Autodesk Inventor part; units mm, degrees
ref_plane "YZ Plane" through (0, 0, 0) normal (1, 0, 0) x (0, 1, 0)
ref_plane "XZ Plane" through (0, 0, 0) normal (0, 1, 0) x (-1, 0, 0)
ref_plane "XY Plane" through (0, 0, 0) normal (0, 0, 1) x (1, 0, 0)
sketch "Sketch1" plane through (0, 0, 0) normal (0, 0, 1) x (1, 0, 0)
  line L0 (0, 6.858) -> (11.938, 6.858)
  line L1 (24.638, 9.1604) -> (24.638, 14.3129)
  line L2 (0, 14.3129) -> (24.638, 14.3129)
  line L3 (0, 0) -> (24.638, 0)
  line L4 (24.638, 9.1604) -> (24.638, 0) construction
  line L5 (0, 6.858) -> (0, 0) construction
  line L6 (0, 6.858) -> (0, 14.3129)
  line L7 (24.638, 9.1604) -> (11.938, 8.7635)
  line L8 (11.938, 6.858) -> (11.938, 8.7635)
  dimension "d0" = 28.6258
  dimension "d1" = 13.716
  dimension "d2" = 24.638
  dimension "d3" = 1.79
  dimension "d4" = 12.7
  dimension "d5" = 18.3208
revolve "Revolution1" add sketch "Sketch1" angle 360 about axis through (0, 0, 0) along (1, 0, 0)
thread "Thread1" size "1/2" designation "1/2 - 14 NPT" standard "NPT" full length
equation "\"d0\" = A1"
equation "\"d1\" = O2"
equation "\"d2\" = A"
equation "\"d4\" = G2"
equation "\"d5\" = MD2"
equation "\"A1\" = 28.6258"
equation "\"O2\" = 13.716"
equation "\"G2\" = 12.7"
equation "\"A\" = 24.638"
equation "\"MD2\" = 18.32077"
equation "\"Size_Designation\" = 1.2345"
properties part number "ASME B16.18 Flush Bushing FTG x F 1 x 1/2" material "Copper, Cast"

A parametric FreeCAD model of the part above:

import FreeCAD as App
import Part
import Sketcher
from FreeCAD import Vector
Q = App.Units.Quantity

doc = App.newDocument("Part")
body = doc.addObject("PartDesign::Body", "Body")

sketch1 = body.newObject("Sketcher::SketchObject", "Sketch")
sketch1.AttachmentSupport = (doc.getObject("XY_Plane"), [""])
sketch1.MapMode = "FlatFace"
sketch1.addGeometry([
    Part.LineSegment(Vector(0, 14.3, 0), Vector(0, 6.9, 0)),
    Part.LineSegment(Vector(0, 6.9, 0), Vector(11.9, 6.9, 0)),
    Part.LineSegment(Vector(11.9, 6.9, 0), Vector(11.9, 8.8, 0)),
    Part.LineSegment(Vector(11.9, 8.8, 0), Vector(24.6, 9.2, 0)),
    Part.LineSegment(Vector(24.6, 9.2, 0), Vector(24.6, 14.3, 0)),
    Part.LineSegment(Vector(24.6, 14.3, 0), Vector(0, 14.3, 0)),
], False)
sketch1.addConstraint([
    Sketcher.Constraint("Coincident", 0, 2, 1, 1),
    Sketcher.Constraint("Coincident", 1, 2, 2, 1),
    Sketcher.Constraint("Coincident", 2, 2, 3, 1),
    Sketcher.Constraint("Coincident", 3, 2, 4, 1),
    Sketcher.Constraint("Coincident", 4, 2, 5, 1),
    Sketcher.Constraint("Coincident", 5, 2, 0, 1),
    Sketcher.Constraint("Vertical", 0),
    Sketcher.Constraint("Horizontal", 1),
    Sketcher.Constraint("Vertical", 2),
    Sketcher.Constraint("Vertical", 4),
    Sketcher.Constraint("Horizontal", 5),
    Sketcher.Constraint("PointOnObject", 0, 2, -2),
    Sketcher.Constraint("DistanceX", 5, 2, 5, 1, Q("0.97 in")),
    Sketcher.Constraint("DistanceX", 2, 2, 3, 2, Q("0.5 in")),
    Sketcher.Constraint("Angle", 3, Q("1.79 deg")),
    Sketcher.Constraint("DistanceY", -1, 1, 0, 2, Q("0.27 in")),
    Sketcher.Constraint("DistanceY", 0, 2, 0, 1, Q("0.2935 in")),
    Sketcher.Constraint("DistanceY", 2, 1, 2, 2, Q("1.9055 mm")),
])
revolution = body.newObject("PartDesign::Revolution", "Revolution")
revolution.Profile = sketch1
revolution.ReferenceAxis = (sketch1, ["H_Axis"])
revolution.Angle = 360

doc.recompute()
